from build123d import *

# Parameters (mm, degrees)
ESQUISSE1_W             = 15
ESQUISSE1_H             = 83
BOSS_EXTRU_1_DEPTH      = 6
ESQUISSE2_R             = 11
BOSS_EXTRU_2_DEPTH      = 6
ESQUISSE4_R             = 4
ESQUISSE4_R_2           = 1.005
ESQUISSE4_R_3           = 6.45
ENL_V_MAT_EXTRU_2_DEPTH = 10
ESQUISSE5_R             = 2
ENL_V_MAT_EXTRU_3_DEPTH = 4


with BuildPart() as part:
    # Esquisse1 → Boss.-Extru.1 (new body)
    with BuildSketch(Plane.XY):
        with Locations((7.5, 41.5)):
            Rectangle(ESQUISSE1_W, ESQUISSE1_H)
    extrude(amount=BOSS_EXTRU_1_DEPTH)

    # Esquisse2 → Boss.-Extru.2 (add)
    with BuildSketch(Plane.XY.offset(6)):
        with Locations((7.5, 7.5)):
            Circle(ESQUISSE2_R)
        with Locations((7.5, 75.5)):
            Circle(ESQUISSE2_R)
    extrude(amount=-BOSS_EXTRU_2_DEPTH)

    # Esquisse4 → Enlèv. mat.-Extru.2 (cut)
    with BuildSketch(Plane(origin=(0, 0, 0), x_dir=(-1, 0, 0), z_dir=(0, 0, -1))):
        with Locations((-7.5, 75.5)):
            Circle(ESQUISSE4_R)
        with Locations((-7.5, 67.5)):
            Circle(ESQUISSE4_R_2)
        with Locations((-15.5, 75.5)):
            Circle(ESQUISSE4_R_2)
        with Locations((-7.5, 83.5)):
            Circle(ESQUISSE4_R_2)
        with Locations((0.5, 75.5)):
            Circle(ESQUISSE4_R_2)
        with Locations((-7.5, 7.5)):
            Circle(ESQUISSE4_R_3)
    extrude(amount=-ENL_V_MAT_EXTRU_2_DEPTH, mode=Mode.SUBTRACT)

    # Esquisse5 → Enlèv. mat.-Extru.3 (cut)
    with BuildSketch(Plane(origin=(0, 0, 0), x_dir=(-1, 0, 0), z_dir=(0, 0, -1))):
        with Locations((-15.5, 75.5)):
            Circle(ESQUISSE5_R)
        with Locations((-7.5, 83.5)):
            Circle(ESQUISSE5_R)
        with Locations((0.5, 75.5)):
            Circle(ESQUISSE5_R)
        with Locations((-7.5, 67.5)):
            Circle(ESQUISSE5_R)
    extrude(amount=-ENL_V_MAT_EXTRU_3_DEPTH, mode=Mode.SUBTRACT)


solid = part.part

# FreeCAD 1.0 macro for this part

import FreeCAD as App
import Part
import Sketcher

V = App.Vector

doc = App.newDocument("Part")
body = doc.addObject("PartDesign::Body", "Body")

sketch1 = body.newObject("Sketcher::SketchObject", "Sketch")
sketch1.AttachmentSupport = (doc.getObject("XY_Plane"), [""])
sketch1.MapMode = "FlatFace"
sketch1.addGeometry(Part.LineSegment(V(0, 83, 0), V(0, 0, 0)), False)
sketch1.addGeometry(Part.LineSegment(V(0, 0, 0), V(15, 0, 0)), False)
sketch1.addGeometry(Part.LineSegment(V(15, 0, 0), V(15, 83, 0)), False)
sketch1.addGeometry(Part.LineSegment(V(15, 83, 0), V(0, 83, 0)), False)
sketch1.addConstraint(Sketcher.Constraint("Coincident", 0, 2, 1, 1))
sketch1.addConstraint(Sketcher.Constraint("Coincident", 1, 2, 2, 1))
sketch1.addConstraint(Sketcher.Constraint("Coincident", 2, 2, 3, 1))
sketch1.addConstraint(Sketcher.Constraint("Coincident", 3, 2, 0, 1))
sketch1.addConstraint(Sketcher.Constraint("Vertical", 0))
sketch1.addConstraint(Sketcher.Constraint("Horizontal", 1))
sketch1.addConstraint(Sketcher.Constraint("Vertical", 2))
sketch1.addConstraint(Sketcher.Constraint("Horizontal", 3))
sketch1.addConstraint(Sketcher.Constraint("Coincident", 0, 2, -1, 1))
sketch1.addConstraint(Sketcher.Constraint("DistanceX", 1, 1, 1, 2, 15.0))
sketch1.addConstraint(Sketcher.Constraint("DistanceY", 0, 2, 0, 1, 83.0))
pad1 = body.newObject("PartDesign::Pad", "Pad")
pad1.Profile = sketch1
pad1.Length = 6

sketch2 = body.newObject("Sketcher::SketchObject", "Sketch001")
sketch2.AttachmentSupport = (doc.getObject("XY_Plane"), [""])
sketch2.MapMode = "FlatFace"
sketch2.AttachmentOffset = App.Placement(V(0, 0, 6), App.Rotation())
sketch2.addGeometry(Part.Circle(V(8, 8, 0), V(0, 0, 1), 11), False)
sketch2.addGeometry(Part.Circle(V(8, 76, 0), V(0, 0, 1), 11), False)
sketch2.addConstraint(Sketcher.Constraint("Equal", 0, 1))
sketch2.addConstraint(Sketcher.Constraint("Vertical", 0, 3, 1, 3))
sketch2.addConstraint(Sketcher.Constraint("Diameter", 0, 22.0))
sketch2.addConstraint(Sketcher.Constraint("DistanceY", 0, 3, 1, 3, 68.0))
sketch2.addConstraint(Sketcher.Constraint("DistanceX", -1, 1, 0, 3, 7.5))
sketch2.addConstraint(Sketcher.Constraint("DistanceY", -1, 1, 0, 3, 7.5))
pad2 = body.newObject("PartDesign::Pad", "Pad001")
pad2.Profile = sketch2
pad2.Length = 6
pad2.Reversed = True

sketch3 = body.newObject("Sketcher::SketchObject", "Sketch002")
sketch3.AttachmentSupport = (doc.getObject("XY_Plane"), [""])
sketch3.MapMode = "FlatFace"
sketch3.addGeometry(Part.Circle(V(7.5, 75.5, 0), V(0, 0, 1), 4), False)
sketch3.addGeometry(Part.Circle(V(7.5, 67.5, 0), V(0, 0, 1), 1), False)
sketch3.addGeometry(Part.Circle(V(15.5, 75.5, 0), V(0, 0, 1), 1), False)
sketch3.addGeometry(Part.Circle(V(7.5, 83.5, 0), V(0, 0, 1), 1), False)
sketch3.addGeometry(Part.Circle(V(-0.5, 75.5, 0), V(0, 0, 1), 1), False)
sketch3.addGeometry(Part.Circle(V(7.5, 7.5, 0), V(0, 0, 1), 6.5), False)
sketch3.addConstraint(Sketcher.Constraint("Equal", 1, 2))
sketch3.addConstraint(Sketcher.Constraint("Equal", 2, 3))
sketch3.addConstraint(Sketcher.Constraint("Equal", 3, 4))
sketch3.addConstraint(Sketcher.Constraint("Horizontal", 0, 3, 2, 3))
sketch3.addConstraint(Sketcher.Constraint("Horizontal", 2, 3, 4, 3))
sketch3.addConstraint(Sketcher.Constraint("Vertical", 0, 3, 1, 3))
sketch3.addConstraint(Sketcher.Constraint("Vertical", 1, 3, 3, 3))
sketch3.addConstraint(Sketcher.Constraint("Vertical", 3, 3, 5, 3))
sketch3.addConstraint(Sketcher.Constraint("Diameter", 0, 8.0))
sketch3.addConstraint(Sketcher.Constraint("Diameter", 5, 12.9))
sketch3.addConstraint(Sketcher.Constraint("Diameter", 1, 2.01))
sketch3.addConstraint(Sketcher.Constraint("DistanceY", 1, 3, 0, 3, 8.0))
sketch3.addConstraint(Sketcher.Constraint("DistanceX", 0, 3, 2, 3, 8.0))
sketch3.addConstraint(Sketcher.Constraint("DistanceY", 0, 3, 3, 3, 8.0))
sketch3.addConstraint(Sketcher.Constraint("DistanceX", 4, 3, 0, 3, 8.0))
sketch3.addConstraint(Sketcher.Constraint("DistanceY", 5, 3, 1, 3, 60.0))
sketch3.addConstraint(Sketcher.Constraint("DistanceX", -1, 1, 0, 3, 7.5))
sketch3.addConstraint(Sketcher.Constraint("DistanceY", -1, 1, 0, 3, 75.5))
pocket1 = body.newObject("PartDesign::Pocket", "Pocket")
pocket1.Profile = sketch3
pocket1.Length = 10
pocket1.Reversed = True

sketch4 = body.newObject("Sketcher::SketchObject", "Sketch003")
sketch4.AttachmentSupport = (doc.getObject("XY_Plane"), [""])
sketch4.MapMode = "FlatFace"
sketch4.addGeometry(Part.Circle(V(15.5, 75.5, 0), V(0, 0, 1), 2), False)
sketch4.addGeometry(Part.Circle(V(7.5, 83.5, 0), V(0, 0, 1), 2), False)
sketch4.addGeometry(Part.Circle(V(-0.5, 75.5, 0), V(0, 0, 1), 2), False)
sketch4.addGeometry(Part.Circle(V(7.5, 67.5, 0), V(0, 0, 1), 2), False)
sketch4.addConstraint(Sketcher.Constraint("Equal", 0, 1))
sketch4.addConstraint(Sketcher.Constraint("Equal", 1, 2))
sketch4.addConstraint(Sketcher.Constraint("Equal", 2, 3))
sketch4.addConstraint(Sketcher.Constraint("Horizontal", 0, 3, 2, 3))
sketch4.addConstraint(Sketcher.Constraint("Vertical", 1, 3, 3, 3))
sketch4.addConstraint(Sketcher.Constraint("Diameter", 0, 4.0))
sketch4.addConstraint(Sketcher.Constraint("DistanceX", 1, 3, 0, 3, 8.0))
sketch4.addConstraint(Sketcher.Constraint("DistanceY", 0, 3, 1, 3, 8.0))
sketch4.addConstraint(Sketcher.Constraint("DistanceX", 2, 3, 1, 3, 8.0))
sketch4.addConstraint(Sketcher.Constraint("DistanceY", 3, 3, 0, 3, 8.0))
sketch4.addConstraint(Sketcher.Constraint("DistanceX", -1, 1, 0, 3, 15.5))
sketch4.addConstraint(Sketcher.Constraint("DistanceY", -1, 1, 0, 3, 75.5))
pocket2 = body.newObject("PartDesign::Pocket", "Pocket001")
pocket2.Profile = sketch4
pocket2.Length = 4
pocket2.Reversed = True

doc.recompute()
